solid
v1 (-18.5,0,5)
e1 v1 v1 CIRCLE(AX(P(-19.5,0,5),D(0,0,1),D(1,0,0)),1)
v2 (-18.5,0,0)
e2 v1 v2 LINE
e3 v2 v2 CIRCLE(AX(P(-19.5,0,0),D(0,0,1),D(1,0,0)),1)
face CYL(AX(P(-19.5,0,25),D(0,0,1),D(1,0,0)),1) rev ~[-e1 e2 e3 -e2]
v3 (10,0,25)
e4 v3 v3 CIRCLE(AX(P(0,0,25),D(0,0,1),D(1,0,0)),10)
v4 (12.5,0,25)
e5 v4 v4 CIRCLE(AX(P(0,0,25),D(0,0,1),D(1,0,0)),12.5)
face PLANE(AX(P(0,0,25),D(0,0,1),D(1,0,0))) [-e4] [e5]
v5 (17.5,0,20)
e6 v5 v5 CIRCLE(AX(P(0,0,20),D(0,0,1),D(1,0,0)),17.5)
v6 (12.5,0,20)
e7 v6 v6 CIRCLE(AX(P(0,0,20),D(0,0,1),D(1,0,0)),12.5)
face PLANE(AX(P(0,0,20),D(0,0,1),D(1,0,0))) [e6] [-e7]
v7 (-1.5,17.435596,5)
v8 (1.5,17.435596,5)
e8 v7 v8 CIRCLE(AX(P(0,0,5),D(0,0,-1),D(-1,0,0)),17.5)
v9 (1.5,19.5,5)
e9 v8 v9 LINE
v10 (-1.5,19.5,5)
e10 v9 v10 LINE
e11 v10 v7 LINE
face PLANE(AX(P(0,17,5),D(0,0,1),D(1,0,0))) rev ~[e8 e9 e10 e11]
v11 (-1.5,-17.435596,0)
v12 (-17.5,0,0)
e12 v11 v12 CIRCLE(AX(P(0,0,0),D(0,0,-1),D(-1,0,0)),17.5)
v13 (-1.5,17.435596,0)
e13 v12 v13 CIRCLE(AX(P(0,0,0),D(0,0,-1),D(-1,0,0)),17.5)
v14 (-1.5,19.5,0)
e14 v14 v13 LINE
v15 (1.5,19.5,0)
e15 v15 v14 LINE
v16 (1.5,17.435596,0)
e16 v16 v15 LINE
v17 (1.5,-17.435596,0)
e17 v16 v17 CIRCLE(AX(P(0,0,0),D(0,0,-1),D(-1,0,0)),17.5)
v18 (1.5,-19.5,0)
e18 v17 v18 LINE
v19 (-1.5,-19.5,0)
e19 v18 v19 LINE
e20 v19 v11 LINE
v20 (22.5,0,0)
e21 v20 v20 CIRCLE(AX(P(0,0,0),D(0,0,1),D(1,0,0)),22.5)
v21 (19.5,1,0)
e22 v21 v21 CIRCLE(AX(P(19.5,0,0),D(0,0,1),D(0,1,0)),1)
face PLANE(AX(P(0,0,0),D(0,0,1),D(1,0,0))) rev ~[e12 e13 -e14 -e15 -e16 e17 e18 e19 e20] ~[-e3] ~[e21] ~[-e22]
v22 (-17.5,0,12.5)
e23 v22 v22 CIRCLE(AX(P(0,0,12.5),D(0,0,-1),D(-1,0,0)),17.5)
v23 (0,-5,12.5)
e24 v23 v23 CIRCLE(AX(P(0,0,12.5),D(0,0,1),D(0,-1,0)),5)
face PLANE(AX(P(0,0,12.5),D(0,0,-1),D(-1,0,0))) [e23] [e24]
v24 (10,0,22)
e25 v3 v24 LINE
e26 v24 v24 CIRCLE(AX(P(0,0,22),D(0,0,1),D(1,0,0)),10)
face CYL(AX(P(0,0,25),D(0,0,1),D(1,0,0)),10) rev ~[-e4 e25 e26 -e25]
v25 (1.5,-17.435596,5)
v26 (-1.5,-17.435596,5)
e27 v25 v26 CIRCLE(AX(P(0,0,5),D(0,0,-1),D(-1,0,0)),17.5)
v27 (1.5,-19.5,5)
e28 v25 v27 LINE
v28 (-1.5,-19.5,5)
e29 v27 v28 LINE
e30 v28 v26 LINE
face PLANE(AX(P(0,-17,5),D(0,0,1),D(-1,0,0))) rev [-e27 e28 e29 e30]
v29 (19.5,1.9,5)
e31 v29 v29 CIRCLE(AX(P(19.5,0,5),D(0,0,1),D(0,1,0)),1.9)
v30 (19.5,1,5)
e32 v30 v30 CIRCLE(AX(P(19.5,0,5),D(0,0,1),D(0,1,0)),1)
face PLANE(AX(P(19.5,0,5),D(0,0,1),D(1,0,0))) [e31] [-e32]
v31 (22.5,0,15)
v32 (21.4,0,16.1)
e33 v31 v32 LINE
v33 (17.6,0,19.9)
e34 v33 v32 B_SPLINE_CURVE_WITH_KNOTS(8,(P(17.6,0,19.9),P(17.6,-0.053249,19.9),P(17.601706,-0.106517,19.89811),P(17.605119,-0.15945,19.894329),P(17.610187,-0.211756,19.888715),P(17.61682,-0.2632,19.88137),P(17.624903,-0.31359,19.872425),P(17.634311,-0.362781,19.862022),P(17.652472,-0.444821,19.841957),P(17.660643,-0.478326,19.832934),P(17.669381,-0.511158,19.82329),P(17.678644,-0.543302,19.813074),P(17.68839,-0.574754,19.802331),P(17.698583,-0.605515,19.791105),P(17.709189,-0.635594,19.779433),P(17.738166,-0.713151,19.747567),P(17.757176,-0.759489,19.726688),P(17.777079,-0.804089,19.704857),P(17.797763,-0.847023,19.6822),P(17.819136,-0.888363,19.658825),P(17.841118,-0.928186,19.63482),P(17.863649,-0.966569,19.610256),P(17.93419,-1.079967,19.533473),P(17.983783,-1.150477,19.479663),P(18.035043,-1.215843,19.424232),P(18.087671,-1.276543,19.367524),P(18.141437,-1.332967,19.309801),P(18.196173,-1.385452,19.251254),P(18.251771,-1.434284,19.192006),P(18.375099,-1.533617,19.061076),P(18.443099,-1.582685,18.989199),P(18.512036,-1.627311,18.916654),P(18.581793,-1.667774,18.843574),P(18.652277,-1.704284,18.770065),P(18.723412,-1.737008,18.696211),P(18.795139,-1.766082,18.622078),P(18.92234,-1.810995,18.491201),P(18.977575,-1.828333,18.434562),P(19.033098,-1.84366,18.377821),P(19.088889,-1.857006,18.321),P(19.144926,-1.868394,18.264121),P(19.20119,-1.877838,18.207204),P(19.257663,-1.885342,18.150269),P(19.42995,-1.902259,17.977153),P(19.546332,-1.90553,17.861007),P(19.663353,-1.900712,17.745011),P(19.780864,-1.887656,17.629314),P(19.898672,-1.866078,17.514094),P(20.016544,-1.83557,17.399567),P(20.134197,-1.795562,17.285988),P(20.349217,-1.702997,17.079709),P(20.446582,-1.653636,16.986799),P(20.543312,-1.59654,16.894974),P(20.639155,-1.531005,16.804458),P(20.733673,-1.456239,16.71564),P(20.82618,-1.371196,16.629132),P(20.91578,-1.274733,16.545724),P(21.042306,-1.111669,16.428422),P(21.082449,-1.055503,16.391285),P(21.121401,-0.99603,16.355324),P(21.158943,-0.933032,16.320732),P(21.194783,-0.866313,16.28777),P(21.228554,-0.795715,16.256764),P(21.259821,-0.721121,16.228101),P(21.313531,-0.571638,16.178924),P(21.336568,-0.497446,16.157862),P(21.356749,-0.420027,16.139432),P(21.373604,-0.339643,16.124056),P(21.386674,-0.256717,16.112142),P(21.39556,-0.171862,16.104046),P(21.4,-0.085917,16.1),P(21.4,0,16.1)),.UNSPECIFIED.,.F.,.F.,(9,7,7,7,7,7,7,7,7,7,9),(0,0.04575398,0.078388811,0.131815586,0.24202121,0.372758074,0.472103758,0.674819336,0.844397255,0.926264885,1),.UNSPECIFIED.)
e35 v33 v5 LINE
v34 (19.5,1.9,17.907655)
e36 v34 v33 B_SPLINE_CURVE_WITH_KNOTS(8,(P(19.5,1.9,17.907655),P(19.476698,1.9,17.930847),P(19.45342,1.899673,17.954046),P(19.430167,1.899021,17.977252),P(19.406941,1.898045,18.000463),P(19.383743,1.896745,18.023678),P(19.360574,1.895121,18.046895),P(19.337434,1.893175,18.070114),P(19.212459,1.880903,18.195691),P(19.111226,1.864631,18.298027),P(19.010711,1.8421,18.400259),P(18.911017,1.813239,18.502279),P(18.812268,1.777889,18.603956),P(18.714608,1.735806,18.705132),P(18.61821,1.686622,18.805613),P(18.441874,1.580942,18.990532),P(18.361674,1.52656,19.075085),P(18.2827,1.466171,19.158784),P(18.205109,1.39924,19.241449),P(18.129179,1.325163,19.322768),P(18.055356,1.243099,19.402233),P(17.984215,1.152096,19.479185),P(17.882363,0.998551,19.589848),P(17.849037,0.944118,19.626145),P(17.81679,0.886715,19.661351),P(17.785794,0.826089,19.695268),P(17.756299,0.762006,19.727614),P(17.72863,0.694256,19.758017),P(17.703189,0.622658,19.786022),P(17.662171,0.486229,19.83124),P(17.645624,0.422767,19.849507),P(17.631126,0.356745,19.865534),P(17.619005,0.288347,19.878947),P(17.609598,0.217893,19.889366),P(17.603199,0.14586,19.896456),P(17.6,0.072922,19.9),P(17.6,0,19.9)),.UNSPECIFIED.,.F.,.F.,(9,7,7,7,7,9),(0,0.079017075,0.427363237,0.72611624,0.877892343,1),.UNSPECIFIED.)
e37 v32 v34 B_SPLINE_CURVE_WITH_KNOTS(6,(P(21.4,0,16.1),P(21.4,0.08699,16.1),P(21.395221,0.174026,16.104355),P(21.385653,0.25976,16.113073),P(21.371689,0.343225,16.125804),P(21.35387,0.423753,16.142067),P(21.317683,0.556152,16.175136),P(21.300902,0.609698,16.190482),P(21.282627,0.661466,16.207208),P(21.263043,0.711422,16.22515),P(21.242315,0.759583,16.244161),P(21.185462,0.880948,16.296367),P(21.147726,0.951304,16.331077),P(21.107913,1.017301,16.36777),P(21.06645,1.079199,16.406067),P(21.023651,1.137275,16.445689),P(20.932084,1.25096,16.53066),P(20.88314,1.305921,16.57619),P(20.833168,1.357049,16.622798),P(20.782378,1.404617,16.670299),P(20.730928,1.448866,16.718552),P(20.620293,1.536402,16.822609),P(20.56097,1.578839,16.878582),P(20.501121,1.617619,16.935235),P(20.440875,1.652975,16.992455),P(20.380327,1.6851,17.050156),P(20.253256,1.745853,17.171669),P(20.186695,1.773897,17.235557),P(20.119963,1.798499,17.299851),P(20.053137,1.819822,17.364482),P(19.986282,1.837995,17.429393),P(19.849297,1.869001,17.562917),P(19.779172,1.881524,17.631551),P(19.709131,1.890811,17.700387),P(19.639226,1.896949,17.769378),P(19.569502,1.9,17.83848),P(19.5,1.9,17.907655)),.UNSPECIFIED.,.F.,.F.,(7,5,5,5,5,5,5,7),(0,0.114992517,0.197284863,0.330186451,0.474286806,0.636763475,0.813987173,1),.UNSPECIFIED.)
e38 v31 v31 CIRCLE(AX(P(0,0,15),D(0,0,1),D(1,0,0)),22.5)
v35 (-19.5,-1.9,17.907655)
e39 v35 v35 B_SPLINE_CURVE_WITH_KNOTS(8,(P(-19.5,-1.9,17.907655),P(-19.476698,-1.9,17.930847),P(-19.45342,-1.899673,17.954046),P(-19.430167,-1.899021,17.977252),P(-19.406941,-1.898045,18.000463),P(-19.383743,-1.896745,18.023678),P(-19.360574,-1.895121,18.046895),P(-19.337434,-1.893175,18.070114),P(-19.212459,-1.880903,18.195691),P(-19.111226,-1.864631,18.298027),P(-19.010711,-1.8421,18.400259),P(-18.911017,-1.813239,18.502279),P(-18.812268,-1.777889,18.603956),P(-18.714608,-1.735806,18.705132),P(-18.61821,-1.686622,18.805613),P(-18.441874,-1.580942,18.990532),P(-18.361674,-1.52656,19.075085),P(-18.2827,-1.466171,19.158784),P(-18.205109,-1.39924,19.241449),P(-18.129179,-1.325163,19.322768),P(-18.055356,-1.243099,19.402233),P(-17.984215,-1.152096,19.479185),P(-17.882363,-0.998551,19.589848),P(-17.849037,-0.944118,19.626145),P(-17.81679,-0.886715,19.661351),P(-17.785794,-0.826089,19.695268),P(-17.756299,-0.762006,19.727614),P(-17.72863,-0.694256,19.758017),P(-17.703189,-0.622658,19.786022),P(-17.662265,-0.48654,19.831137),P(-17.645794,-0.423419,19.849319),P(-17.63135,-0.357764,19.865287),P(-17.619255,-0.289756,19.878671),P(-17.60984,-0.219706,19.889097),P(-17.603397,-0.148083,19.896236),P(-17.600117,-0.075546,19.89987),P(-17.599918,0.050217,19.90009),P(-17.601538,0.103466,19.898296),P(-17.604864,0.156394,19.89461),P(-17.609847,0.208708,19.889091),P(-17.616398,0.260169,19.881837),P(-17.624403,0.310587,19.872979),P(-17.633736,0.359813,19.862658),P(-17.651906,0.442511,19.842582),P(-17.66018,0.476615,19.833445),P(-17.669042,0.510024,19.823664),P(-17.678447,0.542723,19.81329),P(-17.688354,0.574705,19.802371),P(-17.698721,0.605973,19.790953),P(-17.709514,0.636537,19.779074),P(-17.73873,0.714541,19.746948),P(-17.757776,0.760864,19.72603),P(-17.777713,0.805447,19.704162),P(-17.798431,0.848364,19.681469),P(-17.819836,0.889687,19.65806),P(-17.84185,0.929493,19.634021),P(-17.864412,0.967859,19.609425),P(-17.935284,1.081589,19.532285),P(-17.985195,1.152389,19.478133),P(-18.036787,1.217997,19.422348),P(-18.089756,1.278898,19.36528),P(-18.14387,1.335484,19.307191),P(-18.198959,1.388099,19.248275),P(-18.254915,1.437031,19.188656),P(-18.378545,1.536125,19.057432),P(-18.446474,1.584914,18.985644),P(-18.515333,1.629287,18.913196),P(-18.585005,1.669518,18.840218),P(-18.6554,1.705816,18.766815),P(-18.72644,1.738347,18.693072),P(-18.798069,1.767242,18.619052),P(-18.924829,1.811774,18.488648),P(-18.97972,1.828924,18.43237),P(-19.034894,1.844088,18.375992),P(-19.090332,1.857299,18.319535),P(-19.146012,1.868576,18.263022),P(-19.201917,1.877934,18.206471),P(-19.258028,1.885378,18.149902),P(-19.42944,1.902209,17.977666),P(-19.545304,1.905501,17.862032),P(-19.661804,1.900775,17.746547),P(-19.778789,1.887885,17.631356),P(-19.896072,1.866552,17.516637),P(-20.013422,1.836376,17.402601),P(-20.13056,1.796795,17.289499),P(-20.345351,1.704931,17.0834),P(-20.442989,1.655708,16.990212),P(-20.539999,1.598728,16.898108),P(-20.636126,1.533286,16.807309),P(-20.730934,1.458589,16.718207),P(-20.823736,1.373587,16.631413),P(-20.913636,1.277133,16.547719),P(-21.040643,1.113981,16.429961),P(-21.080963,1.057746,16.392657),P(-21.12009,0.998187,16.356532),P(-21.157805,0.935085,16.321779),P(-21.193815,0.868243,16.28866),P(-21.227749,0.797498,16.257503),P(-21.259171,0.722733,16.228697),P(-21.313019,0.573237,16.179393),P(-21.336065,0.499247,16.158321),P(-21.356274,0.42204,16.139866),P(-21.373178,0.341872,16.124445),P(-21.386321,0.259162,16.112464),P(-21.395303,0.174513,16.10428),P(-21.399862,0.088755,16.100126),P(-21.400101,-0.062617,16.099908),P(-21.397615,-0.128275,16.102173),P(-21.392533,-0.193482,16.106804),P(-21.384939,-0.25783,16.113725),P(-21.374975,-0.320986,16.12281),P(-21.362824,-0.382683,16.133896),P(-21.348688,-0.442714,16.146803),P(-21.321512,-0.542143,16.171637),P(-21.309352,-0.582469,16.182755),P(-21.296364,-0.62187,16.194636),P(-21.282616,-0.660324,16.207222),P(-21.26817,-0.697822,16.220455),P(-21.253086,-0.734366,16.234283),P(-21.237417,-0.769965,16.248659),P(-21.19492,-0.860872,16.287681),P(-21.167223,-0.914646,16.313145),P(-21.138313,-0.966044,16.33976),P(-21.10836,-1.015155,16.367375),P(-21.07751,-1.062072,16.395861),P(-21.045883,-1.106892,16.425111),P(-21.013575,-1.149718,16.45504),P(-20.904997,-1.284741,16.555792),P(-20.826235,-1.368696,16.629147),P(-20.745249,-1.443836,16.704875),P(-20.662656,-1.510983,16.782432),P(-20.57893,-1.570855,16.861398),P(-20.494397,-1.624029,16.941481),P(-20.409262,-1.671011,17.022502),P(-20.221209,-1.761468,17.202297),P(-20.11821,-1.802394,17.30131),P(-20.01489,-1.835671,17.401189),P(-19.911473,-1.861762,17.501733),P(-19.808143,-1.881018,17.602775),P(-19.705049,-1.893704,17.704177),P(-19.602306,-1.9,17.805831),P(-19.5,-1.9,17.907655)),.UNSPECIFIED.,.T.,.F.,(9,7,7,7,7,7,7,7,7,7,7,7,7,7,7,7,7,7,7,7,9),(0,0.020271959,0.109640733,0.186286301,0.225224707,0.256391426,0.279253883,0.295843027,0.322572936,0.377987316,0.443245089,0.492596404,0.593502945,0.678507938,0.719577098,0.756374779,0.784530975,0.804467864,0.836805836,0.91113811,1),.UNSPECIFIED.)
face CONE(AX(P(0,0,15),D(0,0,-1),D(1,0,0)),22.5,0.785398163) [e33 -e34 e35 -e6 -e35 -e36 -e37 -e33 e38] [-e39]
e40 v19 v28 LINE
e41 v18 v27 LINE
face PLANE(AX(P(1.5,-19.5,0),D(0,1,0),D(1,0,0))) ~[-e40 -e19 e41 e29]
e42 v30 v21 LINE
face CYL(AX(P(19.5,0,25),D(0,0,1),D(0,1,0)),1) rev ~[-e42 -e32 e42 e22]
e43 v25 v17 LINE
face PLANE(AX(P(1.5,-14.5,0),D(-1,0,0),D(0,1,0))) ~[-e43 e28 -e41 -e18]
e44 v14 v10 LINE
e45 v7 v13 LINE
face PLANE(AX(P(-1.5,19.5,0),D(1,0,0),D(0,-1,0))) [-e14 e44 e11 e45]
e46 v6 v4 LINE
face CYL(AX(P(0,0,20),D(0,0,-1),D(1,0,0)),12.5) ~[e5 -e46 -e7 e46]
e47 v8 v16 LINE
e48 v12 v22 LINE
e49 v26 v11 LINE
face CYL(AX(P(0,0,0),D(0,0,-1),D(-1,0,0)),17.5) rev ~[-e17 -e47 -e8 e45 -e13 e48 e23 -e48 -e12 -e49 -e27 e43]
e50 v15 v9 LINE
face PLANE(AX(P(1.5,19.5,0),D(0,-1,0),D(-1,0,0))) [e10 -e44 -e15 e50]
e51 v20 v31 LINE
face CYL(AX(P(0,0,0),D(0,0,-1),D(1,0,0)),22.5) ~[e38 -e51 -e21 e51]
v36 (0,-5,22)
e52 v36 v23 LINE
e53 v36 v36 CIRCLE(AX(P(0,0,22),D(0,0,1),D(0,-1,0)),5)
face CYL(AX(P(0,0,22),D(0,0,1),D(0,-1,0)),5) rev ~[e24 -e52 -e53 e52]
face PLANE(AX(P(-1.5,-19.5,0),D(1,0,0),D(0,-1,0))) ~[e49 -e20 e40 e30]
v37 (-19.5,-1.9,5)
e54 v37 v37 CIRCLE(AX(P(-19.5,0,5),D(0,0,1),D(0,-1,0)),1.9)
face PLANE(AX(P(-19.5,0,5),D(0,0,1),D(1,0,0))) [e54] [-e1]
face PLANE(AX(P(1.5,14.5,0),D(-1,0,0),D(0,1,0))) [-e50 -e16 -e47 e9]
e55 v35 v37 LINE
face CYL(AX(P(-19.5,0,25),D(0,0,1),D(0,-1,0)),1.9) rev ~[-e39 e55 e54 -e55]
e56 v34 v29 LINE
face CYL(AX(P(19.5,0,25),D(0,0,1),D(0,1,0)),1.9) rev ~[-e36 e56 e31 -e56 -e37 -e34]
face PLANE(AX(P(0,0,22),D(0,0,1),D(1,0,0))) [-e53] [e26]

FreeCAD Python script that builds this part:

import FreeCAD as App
import Part
import Sketcher
from FreeCAD import Vector


def edges_at(feature, points):
    """Names of the edges that pass closest to the given points."""
    edges = feature.Shape.Edges
    near = lambda p: min(range(len(edges)), key=lambda i: edges[i].distToShape(Part.Vertex(*p))[0])
    return sorted({f"Edge{near(p) + 1}" for p in points})

doc = App.newDocument("Part")
params = doc.addObject("Spreadsheet::Sheet", "Params")
for row, (alias, value) in enumerate([
    ("sketch1_diameter", "45 mm"),
    ("pad1_length", "20 mm"),
    ("sketch2_diameter", "25 mm"),
    ("pad2_length", "5 mm"),
    ("sketch3_diameter", "20 mm"),
    ("pocket1_length", "3 mm"),
    ("chamfer_size", "5 mm"),
    ("sketch4_diameter", "10 mm"),
    ("sketch5_diameter", "35 mm"),
    ("pocket3_length", "12.5 mm"),
    ("sketch6_width", "3 mm"),
    ("sketch6_height", "5 mm"),
    ("pocket4_length", "5 mm"),
    ("sketch7_diameter", "2 mm"),
    ("sketch8_diameter", "3.8 mm"),
    ("pocket6_length", "20 mm"),
    ("sketch9_diameter", "2 mm"),
    ("sketch10_diameter", "3.8 mm"),
    ("pocket8_length", "20 mm"),
], start=1):
    params.set(f"A{row}", alias)
    params.set(f"B{row}", "=" + value)
    params.setAlias(f"B{row}", alias)

body = doc.addObject("PartDesign::Body", "Body")

sketch1 = body.newObject("Sketcher::SketchObject", "Sketch")
sketch1.AttachmentSupport = (doc.getObject("XY_Plane"), [""])
sketch1.MapMode = "FlatFace"
sketch1.addGeometry(Part.Circle(Vector(0, 0, 0), Vector(0, 0, 1), 22), False)
sketch1.addConstraint([
    Sketcher.Constraint("Coincident", 0, 3, -1, 1),
    Sketcher.Constraint("Diameter", 0, 45.0),
])
sketch1.setExpression("Constraints[1]", "Params.sketch1_diameter")
pad1 = body.newObject("PartDesign::Pad", "Pad")
pad1.Profile = sketch1
pad1.setExpression("Length", "Params.pad1_length")

sketch2 = body.newObject("Sketcher::SketchObject", "Sketch001")
sketch2.AttachmentSupport = (doc.getObject("XY_Plane"), [""])
sketch2.MapMode = "FlatFace"
sketch2.AttachmentOffset = App.Placement(Vector(0, 0, 20), App.Rotation())
sketch2.addGeometry(Part.Circle(Vector(0, 0, 0), Vector(0, 0, 1), 12), False)
sketch2.addConstraint([
    Sketcher.Constraint("Coincident", 0, 3, -1, 1),
    Sketcher.Constraint("Diameter", 0, 25.0),
])
sketch2.setExpression("Constraints[1]", "Params.sketch2_diameter")
pad2 = body.newObject("PartDesign::Pad", "Pad001")
pad2.Profile = sketch2
pad2.setExpression("Length", "Params.pad2_length")

sketch3 = body.newObject("Sketcher::SketchObject", "Sketch002")
sketch3.AttachmentSupport = (doc.getObject("XY_Plane"), [""])
sketch3.MapMode = "FlatFace"
sketch3.AttachmentOffset = App.Placement(Vector(0, 0, 25), App.Rotation())
sketch3.addGeometry(Part.Circle(Vector(0, 0, 0), Vector(0, 0, 1), 10), False)
sketch3.addConstraint([
    Sketcher.Constraint("Coincident", 0, 3, -1, 1),
    Sketcher.Constraint("Diameter", 0, 20.0),
])
sketch3.setExpression("Constraints[1]", "Params.sketch3_diameter")
pocket1 = body.newObject("PartDesign::Pocket", "Pocket")
pocket1.Profile = sketch3
pocket1.setExpression("Length", "Params.pocket1_length")
doc.recompute()

chamfer = body.newObject("PartDesign::Chamfer", "Chamfer")
chamfer.Base = (pocket1, edges_at(pocket1, [(-22.5, 0, 20)]))
chamfer.setExpression("Size", "Params.chamfer_size")

sketch4 = body.newObject("Sketcher::SketchObject", "Sketch003")
sketch4.AttachmentSupport = (doc.getObject("XY_Plane"), [""])
sketch4.MapMode = "FlatFace"
sketch4.AttachmentOffset = App.Placement(Vector(0, 0, 22), App.Rotation())
sketch4.addGeometry(Part.Circle(Vector(0, 0, 0), Vector(0, 0, 1), 5), False)
sketch4.addConstraint([
    Sketcher.Constraint("Coincident", 0, 3, -1, 1),
    Sketcher.Constraint("Diameter", 0, 10.0),
])
sketch4.setExpression("Constraints[1]", "Params.sketch4_diameter")
pocket2 = body.newObject("PartDesign::Pocket", "Pocket001")
pocket2.Profile = sketch4
pocket2.Type = "ThroughAll"

sketch5 = body.newObject("Sketcher::SketchObject", "Sketch004")
sketch5.AttachmentSupport = (doc.getObject("XY_Plane"), [""])
sketch5.MapMode = "FlatFace"
sketch5.addGeometry(Part.Circle(Vector(0, 0, 0), Vector(0, 0, 1), 18), False)
sketch5.addConstraint([
    Sketcher.Constraint("Coincident", 0, 3, -1, 1),
    Sketcher.Constraint("Diameter", 0, 35.0),
])
sketch5.setExpression("Constraints[1]", "Params.sketch5_diameter")
pocket3 = body.newObject("PartDesign::Pocket", "Pocket002")
pocket3.Profile = sketch5
pocket3.setExpression("Length", "Params.pocket3_length")
pocket3.Reversed = True

sketch6 = body.newObject("Sketcher::SketchObject", "Sketch005")
sketch6.AttachmentSupport = (doc.getObject("XY_Plane"), [""])
sketch6.MapMode = "FlatFace"
sketch6.addGeometry([
    Part.LineSegment(Vector(1.5, 19.5, 0), Vector(1.5, 14.5, 0)),
    Part.LineSegment(Vector(1.5, 14.5, 0), Vector(-1.5, 14.5, 0)),
    Part.LineSegment(Vector(-1.5, 14.5, 0), Vector(-1.5, 19.5, 0)),
    Part.LineSegment(Vector(-1.5, 19.5, 0), Vector(1.5, 19.5, 0)),
], False)
sketch6.addConstraint([
    Sketcher.Constraint("Coincident", 0, 2, 1, 1),
    Sketcher.Constraint("Coincident", 1, 2, 2, 1),
    Sketcher.Constraint("Coincident", 2, 2, 3, 1),
    Sketcher.Constraint("Coincident", 3, 2, 0, 1),
    Sketcher.Constraint("Vertical", 0),
    Sketcher.Constraint("Horizontal", 1),
    Sketcher.Constraint("Vertical", 2),
    Sketcher.Constraint("Horizontal", 3),
    Sketcher.Constraint("DistanceY", -1, 1, 2, 2, 19.5),
    Sketcher.Constraint("DistanceX", 1, 2, 1, 1, 3.0),
    Sketcher.Constraint("DistanceY", 0, 2, 0, 1, 5.0),
    Sketcher.Constraint("DistanceX", -1, 1, 0, 2, 1.5),
])
sketch6.setExpression("Constraints[9]", "Params.sketch6_width")
sketch6.setExpression("Constraints[10]", "Params.sketch6_height")
pocket4 = body.newObject("PartDesign::Pocket", "Pocket003")
pocket4.Profile = sketch6
pocket4.setExpression("Length", "Params.pocket4_length")
pocket4.Reversed = True
doc.recompute()

mirrored = body.newObject("PartDesign::Mirrored", "Mirrored")
mirrored.Originals = [pocket4]
mirrored.MirrorPlane = (doc.getObject("XZ_Plane"), [""])
body.Tip = mirrored

sketch7 = body.newObject("Sketcher::SketchObject", "Sketch006")
sketch7.AttachmentSupport = (doc.getObject("XY_Plane"), [""])
sketch7.MapMode = "FlatFace"
sketch7.AttachmentOffset = App.Placement(Vector(0, 0, 25), App.Rotation())
sketch7.addGeometry(Part.Circle(Vector(-19.5, 0, 0), Vector(0, 0, 1), 1), False)
sketch7.addConstraint([
    Sketcher.Constraint("PointOnObject", 0, 3, -1),
    Sketcher.Constraint("Diameter", 0, 2.0),
    Sketcher.Constraint("DistanceX", 0, 3, -1, 1, 19.5),
])
sketch7.setExpression("Constraints[1]", "Params.sketch7_diameter")
pocket5 = body.newObject("PartDesign::Pocket", "Pocket004")
pocket5.Profile = sketch7
pocket5.Type = "ThroughAll"

sketch8 = body.newObject("Sketcher::SketchObject", "Sketch007")
sketch8.AttachmentSupport = (doc.getObject("XY_Plane"), [""])
sketch8.MapMode = "FlatFace"
sketch8.AttachmentOffset = App.Placement(Vector(0, 0, 25), App.Rotation())
sketch8.addGeometry(Part.Circle(Vector(-19.5, 0, 0), Vector(0, 0, 1), 1.9), False)
sketch8.addConstraint([
    Sketcher.Constraint("PointOnObject", 0, 3, -1),
    Sketcher.Constraint("Diameter", 0, 3.8),
    Sketcher.Constraint("DistanceX", 0, 3, -1, 1, 19.5),
])
sketch8.setExpression("Constraints[1]", "Params.sketch8_diameter")
pocket6 = body.newObject("PartDesign::Pocket", "Pocket005")
pocket6.Profile = sketch8
pocket6.setExpression("Length", "Params.pocket6_length")

sketch9 = body.newObject("Sketcher::SketchObject", "Sketch008")
sketch9.AttachmentSupport = (doc.getObject("XY_Plane"), [""])
sketch9.MapMode = "FlatFace"
sketch9.AttachmentOffset = App.Placement(Vector(0, 0, 25), App.Rotation())
sketch9.addGeometry(Part.Circle(Vector(19.5, 0, 0), Vector(0, 0, 1), 1), False)
sketch9.addConstraint([
    Sketcher.Constraint("PointOnObject", 0, 3, -1),
    Sketcher.Constraint("Diameter", 0, 2.0),
    Sketcher.Constraint("DistanceX", -1, 1, 0, 3, 19.5),
])
sketch9.setExpression("Constraints[1]", "Params.sketch9_diameter")
pocket7 = body.newObject("PartDesign::Pocket", "Pocket006")
pocket7.Profile = sketch9
pocket7.Type = "ThroughAll"

sketch10 = body.newObject("Sketcher::SketchObject", "Sketch009")
sketch10.AttachmentSupport = (doc.getObject("XY_Plane"), [""])
sketch10.MapMode = "FlatFace"
sketch10.AttachmentOffset = App.Placement(Vector(0, 0, 25), App.Rotation())
sketch10.addGeometry(Part.Circle(Vector(19.5, 0, 0), Vector(0, 0, 1), 1.9), False)
sketch10.addConstraint([
    Sketcher.Constraint("PointOnObject", 0, 3, -1),
    Sketcher.Constraint("Diameter", 0, 3.8),
    Sketcher.Constraint("DistanceX", -1, 1, 0, 3, 19.5),
])
sketch10.setExpression("Constraints[1]", "Params.sketch10_diameter")
pocket8 = body.newObject("PartDesign::Pocket", "Pocket007")
pocket8.Profile = sketch10
pocket8.setExpression("Length", "Params.pocket8_length")

doc.recompute()
